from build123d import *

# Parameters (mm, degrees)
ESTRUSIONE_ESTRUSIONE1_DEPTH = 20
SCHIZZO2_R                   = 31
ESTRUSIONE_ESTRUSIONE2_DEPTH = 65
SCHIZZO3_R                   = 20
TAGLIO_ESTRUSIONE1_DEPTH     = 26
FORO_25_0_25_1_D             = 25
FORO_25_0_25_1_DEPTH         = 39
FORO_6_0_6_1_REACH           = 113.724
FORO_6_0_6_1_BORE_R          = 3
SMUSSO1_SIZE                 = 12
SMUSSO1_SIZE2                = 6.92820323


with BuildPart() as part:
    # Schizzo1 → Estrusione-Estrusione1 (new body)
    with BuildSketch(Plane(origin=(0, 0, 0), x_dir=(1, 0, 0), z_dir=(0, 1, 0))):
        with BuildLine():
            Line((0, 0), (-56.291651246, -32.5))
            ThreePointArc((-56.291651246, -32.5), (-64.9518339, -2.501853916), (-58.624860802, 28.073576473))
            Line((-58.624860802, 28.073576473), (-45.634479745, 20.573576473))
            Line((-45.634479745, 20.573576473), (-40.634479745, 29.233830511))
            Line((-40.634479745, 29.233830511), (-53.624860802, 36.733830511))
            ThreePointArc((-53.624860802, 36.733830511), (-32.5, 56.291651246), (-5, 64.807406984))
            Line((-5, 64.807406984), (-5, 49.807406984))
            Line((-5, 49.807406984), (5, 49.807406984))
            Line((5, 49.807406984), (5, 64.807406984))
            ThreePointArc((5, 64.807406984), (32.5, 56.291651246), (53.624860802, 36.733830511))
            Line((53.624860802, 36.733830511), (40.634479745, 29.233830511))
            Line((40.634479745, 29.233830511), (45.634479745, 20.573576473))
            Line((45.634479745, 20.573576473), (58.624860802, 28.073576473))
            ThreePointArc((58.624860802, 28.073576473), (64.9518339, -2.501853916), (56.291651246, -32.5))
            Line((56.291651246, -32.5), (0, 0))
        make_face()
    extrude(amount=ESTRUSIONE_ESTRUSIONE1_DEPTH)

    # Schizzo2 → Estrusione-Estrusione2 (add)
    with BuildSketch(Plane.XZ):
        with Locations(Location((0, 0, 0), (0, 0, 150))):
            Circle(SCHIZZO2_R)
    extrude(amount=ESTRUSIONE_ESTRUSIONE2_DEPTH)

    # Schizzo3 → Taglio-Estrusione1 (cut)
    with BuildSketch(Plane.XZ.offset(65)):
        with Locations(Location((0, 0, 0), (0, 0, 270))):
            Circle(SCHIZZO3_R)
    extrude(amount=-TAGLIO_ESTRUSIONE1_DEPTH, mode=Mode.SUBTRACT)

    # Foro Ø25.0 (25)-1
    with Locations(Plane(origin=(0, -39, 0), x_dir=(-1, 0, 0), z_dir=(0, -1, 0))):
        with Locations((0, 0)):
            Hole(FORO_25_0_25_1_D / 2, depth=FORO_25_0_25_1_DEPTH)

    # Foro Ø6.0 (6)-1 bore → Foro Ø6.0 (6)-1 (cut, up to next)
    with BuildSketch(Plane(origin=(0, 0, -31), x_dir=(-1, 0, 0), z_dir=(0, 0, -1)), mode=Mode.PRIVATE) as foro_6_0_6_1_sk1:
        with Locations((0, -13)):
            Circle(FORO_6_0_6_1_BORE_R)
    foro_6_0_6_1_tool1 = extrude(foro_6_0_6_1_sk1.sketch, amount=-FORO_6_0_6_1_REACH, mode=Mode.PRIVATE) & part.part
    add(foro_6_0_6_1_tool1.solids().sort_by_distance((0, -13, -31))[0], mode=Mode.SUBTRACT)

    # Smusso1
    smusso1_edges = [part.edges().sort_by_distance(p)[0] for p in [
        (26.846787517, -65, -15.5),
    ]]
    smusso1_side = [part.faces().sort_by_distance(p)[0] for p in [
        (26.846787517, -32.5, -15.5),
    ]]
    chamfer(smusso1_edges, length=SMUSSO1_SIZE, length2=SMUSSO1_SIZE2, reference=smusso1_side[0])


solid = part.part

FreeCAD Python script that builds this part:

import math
import FreeCAD as App
import Part
import Sketcher
Q = App.Units.Quantity


def edges_at(feature, points):
    """Names of the edges that pass closest to the given points."""
    edges = feature.Shape.Edges
    near = lambda p: min(range(len(edges)), key=lambda i: edges[i].distToShape(Part.Vertex(*p))[0])
    return sorted({f"Edge{near(p) + 1}" for p in points})

doc = App.newDocument("Part")
body = doc.addObject("PartDesign::Body", "Body")

sketch1 = body.newObject("Sketcher::SketchObject", "Sketch")
sketch1.AttachmentSupport = (doc.getObject("XZ_Plane"), [""])
sketch1.MapMode = "FlatFace"
sketch1.addGeometry(Part.LineSegment(App.Vector(-56.291651, 32.5, 0), App.Vector(0, 0, 0)), False)
sketch1.addGeometry(Part.LineSegment(App.Vector(0, 0, 0), App.Vector(56.291651, 32.5, 0)), False)
sketch1.addGeometry(Part.ArcOfCircle(Part.Circle(App.Vector(0, 0, 0), App.Vector(0, 0, 1), 65), math.radians(-25.588274), math.radians(30)), False)
sketch1.addGeometry(Part.LineSegment(App.Vector(58.624861, -28.073576, 0), App.Vector(45.63448, -20.573576, 0)), False)
sketch1.addGeometry(Part.LineSegment(App.Vector(45.63448, -20.573576, 0), App.Vector(40.63448, -29.233831, 0)), False)
sketch1.addGeometry(Part.LineSegment(App.Vector(40.63448, -29.233831, 0), App.Vector(53.624861, -36.733831, 0)), False)
sketch1.addGeometry(Part.ArcOfCircle(Part.Circle(App.Vector(0, 0, 0), App.Vector(0, 0, 1), 65), math.radians(-85.588274), math.radians(-34.411726)), False)
sketch1.addGeometry(Part.LineSegment(App.Vector(5, -64.807407, 0), App.Vector(5, -49.807407, 0)), False)
sketch1.addGeometry(Part.LineSegment(App.Vector(5, -49.807407, 0), App.Vector(-5, -49.807407, 0)), False)
sketch1.addGeometry(Part.LineSegment(App.Vector(-5, -49.807407, 0), App.Vector(-5, -64.807407, 0)), False)
sketch1.addGeometry(Part.ArcOfCircle(Part.Circle(App.Vector(0, 0, 0), App.Vector(0, 0, 1), 65), math.radians(-145.588274), math.radians(-94.411726)), False)
sketch1.addGeometry(Part.LineSegment(App.Vector(-53.624861, -36.733831, 0), App.Vector(-40.63448, -29.233831, 0)), False)
sketch1.addGeometry(Part.LineSegment(App.Vector(-40.63448, -29.233831, 0), App.Vector(-45.63448, -20.573576, 0)), False)
sketch1.addGeometry(Part.LineSegment(App.Vector(-45.63448, -20.573576, 0), App.Vector(-58.624861, -28.073576, 0)), False)
sketch1.addGeometry(Part.ArcOfCircle(Part.Circle(App.Vector(0, 0, 0), App.Vector(0, 0, 1), 65), math.radians(150), math.radians(205.588274)), False)
sketch1.addConstraint(Sketcher.Constraint("Coincident", 0, 2, 1, 1))
sketch1.addConstraint(Sketcher.Constraint("Coincident", 1, 2, 2, 2))
sketch1.addConstraint(Sketcher.Constraint("Coincident", 2, 1, 3, 1))
sketch1.addConstraint(Sketcher.Constraint("Coincident", 3, 2, 4, 1))
sketch1.addConstraint(Sketcher.Constraint("Coincident", 4, 2, 5, 1))
sketch1.addConstraint(Sketcher.Constraint("Coincident", 5, 2, 6, 2))
sketch1.addConstraint(Sketcher.Constraint("Coincident", 6, 1, 7, 1))
sketch1.addConstraint(Sketcher.Constraint("Coincident", 7, 2, 8, 1))
sketch1.addConstraint(Sketcher.Constraint("Coincident", 8, 2, 9, 1))
sketch1.addConstraint(Sketcher.Constraint("Coincident", 9, 2, 10, 2))
sketch1.addConstraint(Sketcher.Constraint("Coincident", 10, 1, 11, 1))
sketch1.addConstraint(Sketcher.Constraint("Coincident", 11, 2, 12, 1))
sketch1.addConstraint(Sketcher.Constraint("Coincident", 12, 2, 13, 1))
sketch1.addConstraint(Sketcher.Constraint("Coincident", 13, 2, 14, 2))
sketch1.addConstraint(Sketcher.Constraint("Coincident", 14, 1, 0, 1))
sketch1.addConstraint(Sketcher.Constraint("Vertical", 7))
sketch1.addConstraint(Sketcher.Constraint("Horizontal", 8))
sketch1.addConstraint(Sketcher.Constraint("Vertical", 9))
sketch1.addConstraint(Sketcher.Constraint("Coincident", 2, 3, -1, 1))
sketch1.addConstraint(Sketcher.Constraint("Coincident", 6, 3, -1, 1))
sketch1.addConstraint(Sketcher.Constraint("Coincident", 10, 3, -1, 1))
sketch1.addConstraint(Sketcher.Constraint("Coincident", 14, 3, -1, 1))
sketch1.addConstraint(Sketcher.Constraint("Coincident", 0, 2, -1, 1))
sketch1.addConstraint(Sketcher.Constraint("Equal", 2, 6))
sketch1.addConstraint(Sketcher.Constraint("Equal", 6, 10))
sketch1.addConstraint(Sketcher.Constraint("Equal", 10, 14))
sketch1.addConstraint(Sketcher.Constraint("Symmetric", 4, 2, 11, 2, -2))
sketch1.addConstraint(Sketcher.Constraint("Symmetric", 3, 2, 12, 2, -2))
sketch1.addConstraint(Sketcher.Constraint("Parallel", 0, 3))
sketch1.addConstraint(Sketcher.Constraint("Perpendicular", 3, 4))
sketch1.addConstraint(Sketcher.Constraint("Perpendicular", 4, 5))
sketch1.addConstraint(Sketcher.Constraint("Parallel", 1, 11))
sketch1.addConstraint(Sketcher.Constraint("Perpendicular", 11, 12))
sketch1.addConstraint(Sketcher.Constraint("Perpendicular", 12, 13))
sketch1.addConstraint(Sketcher.Constraint("Horizontal", 6, 1, 9, 2))
sketch1.addConstraint(Sketcher.Constraint("Equal", 3, 5))
sketch1.addConstraint(Sketcher.Constraint("Radius", 2, Q("65 mm")))
sketch1.addConstraint(Sketcher.Constraint("DistanceX", 8, 2, 8, 1, Q("10 mm")))
sketch1.addConstraint(Sketcher.Constraint("DistanceY", 7, 1, 7, 2, Q("15 mm")))
sketch1.addConstraint(Sketcher.Constraint("Angle", 0, Q("-30 deg")))
sketch1.addConstraint(Sketcher.Constraint("Distance", 3, Q("15 mm")))
sketch1.addConstraint(Sketcher.Constraint("Distance", 4, Q("10 mm")))
pad1 = body.newObject("PartDesign::Pad", "Pad")
pad1.Profile = sketch1
pad1.Length = 20
pad1.Reversed = True

sketch2 = body.newObject("Sketcher::SketchObject", "Sketch001")
sketch2.AttachmentSupport = (doc.getObject("XZ_Plane"), [""])
sketch2.MapMode = "FlatFace"
sketch2.addGeometry(Part.Circle(App.Vector(0, 0, 0), App.Vector(0, 0, 1), 31), False)
sketch2.addConstraint(Sketcher.Constraint("Coincident", 0, 3, -1, 1))
sketch2.addConstraint(Sketcher.Constraint("Diameter", 0, Q("62 mm")))
pad2 = body.newObject("PartDesign::Pad", "Pad001")
pad2.Profile = sketch2
pad2.Length = 65

sketch3 = body.newObject("Sketcher::SketchObject", "Sketch002")
sketch3.AttachmentSupport = (doc.getObject("XZ_Plane"), [""])
sketch3.MapMode = "FlatFace"
sketch3.AttachmentOffset = App.Placement(App.Vector(0, 0, 65), App.Rotation())
sketch3.addGeometry(Part.Circle(App.Vector(0, 0, 0), App.Vector(0, 0, 1), 20), False)
sketch3.addConstraint(Sketcher.Constraint("Coincident", 0, 3, -1, 1))
sketch3.addConstraint(Sketcher.Constraint("Diameter", 0, Q("40 mm")))
pocket1 = body.newObject("PartDesign::Pocket", "Pocket")
pocket1.Profile = sketch3
pocket1.Length = 26

sketch4 = body.newObject("Sketcher::SketchObject", "Sketch003")
sketch4.AttachmentSupport = (doc.getObject("XZ_Plane"), [""])
sketch4.MapMode = "FlatFace"
sketch4.AttachmentOffset = App.Placement(App.Vector(0, 0, 39), App.Rotation())
sketch4.addGeometry(Part.Circle(App.Vector(0, 0, 0), App.Vector(0, 0, 1), 12.5), False)
sketch4.addConstraint(Sketcher.Constraint("Coincident", 0, 3, -1, 1))
sketch4.addConstraint(Sketcher.Constraint("Diameter", 0, Q("25 mm")))
doc.recompute()
hole = body.newObject("PartDesign::Hole", "Hole")
hole.Profile = sketch4
hole.ThreadType = "None"
hole.Diameter = 25
hole.DepthType = "Dimension"
hole.Depth = 39
hole.DrillPoint = "Flat"

sketch5 = body.newObject("Sketcher::SketchObject", "Sketch004")
sketch5.AttachmentSupport = (doc.getObject("XY_Plane"), [""])
sketch5.MapMode = "FlatFace"
sketch5.AttachmentOffset = App.Placement(App.Vector(0, 0, -31), App.Rotation())
sketch5.addGeometry(Part.Circle(App.Vector(0, -13, 0), App.Vector(0, 0, 1), 3), False)
sketch5.addConstraint(Sketcher.Constraint("PointOnObject", 0, 3, -2))
sketch5.addConstraint(Sketcher.Constraint("Diameter", 0, Q("6 mm")))
sketch5.addConstraint(Sketcher.Constraint("DistanceY", 0, 3, -1, 1, Q("13 mm")))
pocket2 = body.newObject("PartDesign::Pocket", "Pocket001")
pocket2.Profile = sketch5
pocket2.Type = "UpToFirst"
pocket2.Reversed = True
doc.recompute()

chamfer = body.newObject("PartDesign::Chamfer", "Chamfer")
chamfer.Base = (pocket2, edges_at(pocket2, [(26.847, -65, -15.5)]))
chamfer.ChamferType = "Two distances"
chamfer.Size = 12
chamfer.Size2 = 6.928203

doc.recompute()
